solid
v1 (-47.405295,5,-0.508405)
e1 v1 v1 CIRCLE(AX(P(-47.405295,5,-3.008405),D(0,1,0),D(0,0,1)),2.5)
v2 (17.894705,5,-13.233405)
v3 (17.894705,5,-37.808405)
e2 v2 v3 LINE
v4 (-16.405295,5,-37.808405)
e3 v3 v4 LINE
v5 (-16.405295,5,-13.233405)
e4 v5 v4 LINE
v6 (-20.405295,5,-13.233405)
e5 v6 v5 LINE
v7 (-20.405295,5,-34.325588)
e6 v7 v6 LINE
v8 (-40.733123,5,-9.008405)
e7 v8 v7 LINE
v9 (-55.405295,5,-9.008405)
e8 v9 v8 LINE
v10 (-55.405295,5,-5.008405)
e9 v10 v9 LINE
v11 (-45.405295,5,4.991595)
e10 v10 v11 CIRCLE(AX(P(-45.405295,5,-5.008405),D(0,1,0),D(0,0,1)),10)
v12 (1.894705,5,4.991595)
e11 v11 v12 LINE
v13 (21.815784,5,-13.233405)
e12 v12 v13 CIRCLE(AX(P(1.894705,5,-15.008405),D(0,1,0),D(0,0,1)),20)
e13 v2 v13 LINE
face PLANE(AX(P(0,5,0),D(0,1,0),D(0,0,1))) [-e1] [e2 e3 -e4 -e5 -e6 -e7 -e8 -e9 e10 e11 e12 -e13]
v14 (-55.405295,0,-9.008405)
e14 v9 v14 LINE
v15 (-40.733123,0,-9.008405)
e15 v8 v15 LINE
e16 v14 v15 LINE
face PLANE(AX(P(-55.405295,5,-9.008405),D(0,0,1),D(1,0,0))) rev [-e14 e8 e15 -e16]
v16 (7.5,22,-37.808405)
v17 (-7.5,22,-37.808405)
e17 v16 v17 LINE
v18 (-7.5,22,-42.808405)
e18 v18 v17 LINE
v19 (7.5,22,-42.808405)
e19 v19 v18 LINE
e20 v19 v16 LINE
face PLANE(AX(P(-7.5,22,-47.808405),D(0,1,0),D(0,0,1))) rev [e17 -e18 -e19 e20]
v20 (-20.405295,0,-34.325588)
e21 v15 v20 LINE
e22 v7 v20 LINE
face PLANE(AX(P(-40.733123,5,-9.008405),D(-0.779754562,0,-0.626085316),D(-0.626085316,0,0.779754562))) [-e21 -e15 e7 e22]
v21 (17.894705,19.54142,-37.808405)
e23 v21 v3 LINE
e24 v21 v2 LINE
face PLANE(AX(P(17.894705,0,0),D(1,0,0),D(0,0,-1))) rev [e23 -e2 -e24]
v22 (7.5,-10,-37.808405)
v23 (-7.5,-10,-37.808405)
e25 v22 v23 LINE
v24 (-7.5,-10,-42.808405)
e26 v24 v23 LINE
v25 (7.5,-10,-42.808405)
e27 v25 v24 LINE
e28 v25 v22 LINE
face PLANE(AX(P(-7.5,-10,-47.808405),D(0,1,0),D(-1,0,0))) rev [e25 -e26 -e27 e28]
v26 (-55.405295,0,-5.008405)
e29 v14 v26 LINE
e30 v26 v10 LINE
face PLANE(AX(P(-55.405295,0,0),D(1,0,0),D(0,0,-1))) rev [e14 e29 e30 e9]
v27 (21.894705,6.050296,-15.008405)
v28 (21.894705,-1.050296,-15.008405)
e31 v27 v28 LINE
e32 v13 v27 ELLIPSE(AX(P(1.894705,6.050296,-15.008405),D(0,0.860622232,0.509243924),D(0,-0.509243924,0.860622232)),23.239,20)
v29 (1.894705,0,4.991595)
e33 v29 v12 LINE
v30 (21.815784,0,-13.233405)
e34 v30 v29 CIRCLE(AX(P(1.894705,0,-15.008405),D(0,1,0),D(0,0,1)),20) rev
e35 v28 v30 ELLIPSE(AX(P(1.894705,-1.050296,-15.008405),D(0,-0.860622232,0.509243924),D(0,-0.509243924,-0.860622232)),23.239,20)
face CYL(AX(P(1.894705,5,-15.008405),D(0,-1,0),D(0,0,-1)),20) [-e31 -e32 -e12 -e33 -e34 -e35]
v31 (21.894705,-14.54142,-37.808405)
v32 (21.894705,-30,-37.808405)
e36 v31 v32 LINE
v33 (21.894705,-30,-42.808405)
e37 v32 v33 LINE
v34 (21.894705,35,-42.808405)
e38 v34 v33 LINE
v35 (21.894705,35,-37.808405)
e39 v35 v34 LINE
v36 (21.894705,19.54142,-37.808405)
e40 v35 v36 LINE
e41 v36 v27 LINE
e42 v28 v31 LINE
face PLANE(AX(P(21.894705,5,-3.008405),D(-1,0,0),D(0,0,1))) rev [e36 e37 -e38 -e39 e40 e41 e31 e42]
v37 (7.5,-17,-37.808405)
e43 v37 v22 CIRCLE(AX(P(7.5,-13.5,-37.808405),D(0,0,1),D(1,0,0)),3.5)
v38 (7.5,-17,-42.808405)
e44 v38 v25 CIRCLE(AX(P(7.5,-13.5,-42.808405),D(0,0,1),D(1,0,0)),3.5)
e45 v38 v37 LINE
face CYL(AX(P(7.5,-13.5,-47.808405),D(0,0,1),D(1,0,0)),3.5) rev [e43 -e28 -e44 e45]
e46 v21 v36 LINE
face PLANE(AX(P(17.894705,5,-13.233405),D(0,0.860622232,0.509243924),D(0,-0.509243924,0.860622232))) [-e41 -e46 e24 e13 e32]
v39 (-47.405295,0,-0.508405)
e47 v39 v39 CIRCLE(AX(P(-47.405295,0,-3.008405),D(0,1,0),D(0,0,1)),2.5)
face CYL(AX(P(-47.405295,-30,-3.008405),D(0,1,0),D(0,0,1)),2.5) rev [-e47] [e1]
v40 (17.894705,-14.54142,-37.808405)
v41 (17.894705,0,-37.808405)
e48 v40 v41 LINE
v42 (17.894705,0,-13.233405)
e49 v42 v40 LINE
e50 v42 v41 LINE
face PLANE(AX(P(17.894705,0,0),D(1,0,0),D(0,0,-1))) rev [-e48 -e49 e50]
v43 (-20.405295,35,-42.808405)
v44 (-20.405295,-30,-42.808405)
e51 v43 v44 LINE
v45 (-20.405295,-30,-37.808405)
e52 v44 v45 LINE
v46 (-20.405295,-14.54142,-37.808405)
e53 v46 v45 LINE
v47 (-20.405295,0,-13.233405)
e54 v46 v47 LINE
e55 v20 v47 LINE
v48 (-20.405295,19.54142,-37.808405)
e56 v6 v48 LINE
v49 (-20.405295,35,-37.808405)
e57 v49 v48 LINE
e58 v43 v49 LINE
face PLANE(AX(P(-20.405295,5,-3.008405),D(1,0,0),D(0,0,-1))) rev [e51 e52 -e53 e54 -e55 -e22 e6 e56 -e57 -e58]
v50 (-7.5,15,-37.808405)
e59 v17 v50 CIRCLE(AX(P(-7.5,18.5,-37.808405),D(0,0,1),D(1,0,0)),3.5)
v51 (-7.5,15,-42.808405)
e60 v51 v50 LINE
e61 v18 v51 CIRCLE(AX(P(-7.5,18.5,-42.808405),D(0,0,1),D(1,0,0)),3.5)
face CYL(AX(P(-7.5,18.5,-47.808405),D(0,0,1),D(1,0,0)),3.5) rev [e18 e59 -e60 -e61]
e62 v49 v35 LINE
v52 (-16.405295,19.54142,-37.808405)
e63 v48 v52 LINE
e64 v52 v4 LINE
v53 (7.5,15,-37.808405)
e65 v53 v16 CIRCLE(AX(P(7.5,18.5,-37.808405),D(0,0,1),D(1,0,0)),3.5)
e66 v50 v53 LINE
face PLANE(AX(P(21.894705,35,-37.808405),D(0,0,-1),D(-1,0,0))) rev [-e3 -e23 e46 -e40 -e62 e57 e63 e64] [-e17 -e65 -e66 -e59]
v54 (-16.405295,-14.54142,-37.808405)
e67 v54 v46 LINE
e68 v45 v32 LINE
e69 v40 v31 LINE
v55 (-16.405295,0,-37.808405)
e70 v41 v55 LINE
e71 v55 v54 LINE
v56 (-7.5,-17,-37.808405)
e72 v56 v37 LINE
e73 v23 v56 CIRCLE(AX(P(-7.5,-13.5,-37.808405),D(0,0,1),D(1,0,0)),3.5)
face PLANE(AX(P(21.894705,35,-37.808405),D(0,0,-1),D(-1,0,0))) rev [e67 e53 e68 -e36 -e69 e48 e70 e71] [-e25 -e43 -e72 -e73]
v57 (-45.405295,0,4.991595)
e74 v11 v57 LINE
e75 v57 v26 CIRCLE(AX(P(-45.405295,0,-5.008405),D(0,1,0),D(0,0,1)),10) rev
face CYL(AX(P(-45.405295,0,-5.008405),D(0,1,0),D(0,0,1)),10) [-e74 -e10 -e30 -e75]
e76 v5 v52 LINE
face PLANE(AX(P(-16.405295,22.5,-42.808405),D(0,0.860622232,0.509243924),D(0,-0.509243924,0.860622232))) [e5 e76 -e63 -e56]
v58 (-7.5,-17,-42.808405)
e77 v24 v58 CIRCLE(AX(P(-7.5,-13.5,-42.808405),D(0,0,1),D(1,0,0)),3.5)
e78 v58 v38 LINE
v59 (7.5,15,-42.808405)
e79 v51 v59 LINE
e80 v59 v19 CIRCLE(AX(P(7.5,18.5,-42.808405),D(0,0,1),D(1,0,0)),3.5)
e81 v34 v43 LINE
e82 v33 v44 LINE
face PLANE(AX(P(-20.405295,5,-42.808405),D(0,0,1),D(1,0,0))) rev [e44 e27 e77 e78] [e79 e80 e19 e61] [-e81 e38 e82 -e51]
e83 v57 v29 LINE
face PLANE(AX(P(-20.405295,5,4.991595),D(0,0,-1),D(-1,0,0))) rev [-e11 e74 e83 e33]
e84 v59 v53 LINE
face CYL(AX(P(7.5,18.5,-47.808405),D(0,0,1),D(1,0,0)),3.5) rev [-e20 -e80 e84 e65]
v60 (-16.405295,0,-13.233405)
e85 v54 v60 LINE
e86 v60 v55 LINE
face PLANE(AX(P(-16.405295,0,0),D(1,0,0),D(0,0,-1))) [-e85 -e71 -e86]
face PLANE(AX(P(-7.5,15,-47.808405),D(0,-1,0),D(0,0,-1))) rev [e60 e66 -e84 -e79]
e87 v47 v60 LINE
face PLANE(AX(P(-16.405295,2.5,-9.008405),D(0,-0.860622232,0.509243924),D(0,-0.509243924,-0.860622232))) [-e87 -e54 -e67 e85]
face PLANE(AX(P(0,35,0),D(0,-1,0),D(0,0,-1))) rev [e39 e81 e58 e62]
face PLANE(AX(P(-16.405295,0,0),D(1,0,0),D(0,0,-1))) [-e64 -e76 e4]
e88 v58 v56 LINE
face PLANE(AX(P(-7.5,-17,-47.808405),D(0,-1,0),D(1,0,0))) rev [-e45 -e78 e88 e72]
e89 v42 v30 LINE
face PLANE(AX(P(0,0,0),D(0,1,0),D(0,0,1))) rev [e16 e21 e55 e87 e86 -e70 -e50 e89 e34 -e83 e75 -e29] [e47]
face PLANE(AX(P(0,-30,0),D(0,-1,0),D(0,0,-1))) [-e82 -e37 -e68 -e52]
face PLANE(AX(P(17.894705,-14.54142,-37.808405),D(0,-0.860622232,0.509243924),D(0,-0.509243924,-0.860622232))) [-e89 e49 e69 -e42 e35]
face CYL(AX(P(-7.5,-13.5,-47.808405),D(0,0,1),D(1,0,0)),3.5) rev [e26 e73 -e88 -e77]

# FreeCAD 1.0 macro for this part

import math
import FreeCAD as App
import Part
import Sketcher


def edges_at(feature, points):
    """Names of the edges that pass closest to the given points."""
    edges = feature.Shape.Edges
    near = lambda p: min(range(len(edges)), key=lambda i: edges[i].distToShape(Part.Vertex(*p))[0])
    return sorted({f"Edge{near(p) + 1}" for p in points})


def add_polygon(sketch, points):
    """Adds a closed chain of lines whose ends are joined by coincident constraints."""
    first, n = sketch.GeometryCount, len(points)
    for a, b in zip(points, points[1:] + points[:1]):
        sketch.addGeometry(Part.LineSegment(App.Vector(*a, 0), App.Vector(*b, 0)), False)
    for i in range(n):
        sketch.addConstraint(Sketcher.Constraint("Coincident", first + i, 2, first + (i + 1) % n, 1))

doc = App.newDocument("Part")
body = doc.addObject("PartDesign::Body", "Body")

# Sketch on XZ plane
sketch1 = body.newObject("Sketcher::SketchObject", "Sketch")
sketch1.AttachmentSupport = (doc.getObject("XZ_Plane"), [""])
sketch1.MapMode = "FlatFace"
add_polygon(sketch1, [(22, -43), (-20, -43), (-20, 5), (22, 5)])  # lines 0-3
sketch1.addConstraint([
    Sketcher.Constraint("Horizontal", 0),
    Sketcher.Constraint("Vertical", 1),
    Sketcher.Constraint("Horizontal", 2),
    Sketcher.Constraint("Vertical", 3),
    Sketcher.Constraint("DistanceX", 0, 2, 0, 1, 42.3),
    Sketcher.Constraint("DistanceY", 1, 1, 1, 2, 47.8),
    Sketcher.Constraint("DistanceX", 0, 2, -1, 1, 20.405295),
    Sketcher.Constraint("DistanceY", 0, 2, -1, 1, 42.808405),
])
pad1 = body.newObject("PartDesign::Pad", "Pad")
pad1.Profile = sketch1
pad1.Length = 5
pad1.Reversed = True

# Sketch on XZ plane
sketch2 = body.newObject("Sketcher::SketchObject", "Sketch001")
sketch2.AttachmentSupport = (doc.getObject("XZ_Plane"), [""])
sketch2.MapMode = "FlatFace"
sketch2.AttachmentOffset = App.Placement(App.Vector(0, 0, -5), App.Rotation())
add_polygon(sketch2, [(-20, -43), (-20, -38), (22, -38), (22, -43)])  # lines 0-3
sketch2.addConstraint([
    Sketcher.Constraint("Vertical", 0),
    Sketcher.Constraint("Horizontal", 1),
    Sketcher.Constraint("Vertical", 2),
    Sketcher.Constraint("Horizontal", 3),
    Sketcher.Constraint("DistanceY", 0, 1, 0, 2, 5.0),
    Sketcher.Constraint("DistanceX", 1, 1, 1, 2, 42.3),
    Sketcher.Constraint("DistanceX", 0, 2, -1, 1, 20.405295),
    Sketcher.Constraint("DistanceY", 0, 2, -1, 1, 37.808405),
])
pad2 = body.newObject("PartDesign::Pad", "Pad001")
pad2.Profile = sketch2
pad2.Type = "TwoLengths"
pad2.Length = 30
pad2.Length2 = 35
pad2.Reversed = True

# Sketch on XY plane
sketch3 = body.newObject("Sketcher::SketchObject", "Sketch002")
sketch3.AttachmentSupport = (doc.getObject("XY_Plane"), [""])
sketch3.MapMode = "FlatFace"
sketch3.AttachmentOffset = App.Placement(App.Vector(0, 0, -37.808405), App.Rotation())
sketch3.addGeometry([
    Part.LineSegment(App.Vector(7.5, 22, 0), App.Vector(-7.5, 22, 0)),  # 0
    Part.ArcOfCircle(Part.Circle(App.Vector(-7.5, 18.5, 0), App.Vector(0, 0, 1), 3.5), math.radians(90), math.radians(270)),  # 1
    Part.LineSegment(App.Vector(-7.5, 15, 0), App.Vector(7.5, 15, 0)),  # 2
    Part.ArcOfCircle(Part.Circle(App.Vector(7.5, 18.5, 0), App.Vector(0, 0, 1), 3.5), math.radians(-90), math.radians(90)),  # 3
    Part.LineSegment(App.Vector(7.5, -10, 0), App.Vector(-7.5, -10, 0)),  # 4
    Part.ArcOfCircle(Part.Circle(App.Vector(-7.5, -13.5, 0), App.Vector(0, 0, 1), 3.5), math.radians(90), math.radians(270)),  # 5
    Part.LineSegment(App.Vector(-7.5, -17, 0), App.Vector(7.5, -17, 0)),  # 6
    Part.ArcOfCircle(Part.Circle(App.Vector(7.5, -13.5, 0), App.Vector(0, 0, 1), 3.5), math.radians(-90), math.radians(90)),  # 7
], False)
sketch3.addConstraint([
    Sketcher.Constraint("Tangent", 0, 2, 1, 1),
    Sketcher.Constraint("Tangent", 1, 2, 2, 1),
    Sketcher.Constraint("Tangent", 2, 2, 3, 1),
    Sketcher.Constraint("Tangent", 3, 2, 0, 1),
    Sketcher.Constraint("Tangent", 4, 2, 5, 1),
    Sketcher.Constraint("Tangent", 5, 2, 6, 1),
    Sketcher.Constraint("Tangent", 6, 2, 7, 1),
    Sketcher.Constraint("Tangent", 7, 2, 4, 1),
    Sketcher.Constraint("Horizontal", 0),
    Sketcher.Constraint("Horizontal", 2),
    Sketcher.Constraint("Horizontal", 4),
    Sketcher.Constraint("Horizontal", 6),
    Sketcher.Constraint("Equal", 3, 5),
    Sketcher.Constraint("Vertical", 1, 3, 5, 3),
    Sketcher.Constraint("Vertical", 3, 3, 7, 3),
    Sketcher.Constraint("Radius", 1, 3.5),
    Sketcher.Constraint("DistanceX", 0, 2, 0, 1, 15.0),
    Sketcher.Constraint("DistanceY", -1, 1, 0, 2, 22.0),
    Sketcher.Constraint("DistanceY", 4, 2, -1, 1, 10.0),
    Sketcher.Constraint("DistanceX", 1, 3, -1, 1, 7.5),
])
pocket1 = body.newObject("PartDesign::Pocket", "Pocket")
pocket1.Profile = sketch3
pocket1.Length = 10

# Sketch on YZ plane
sketch4 = body.newObject("Sketcher::SketchObject", "Sketch003")
sketch4.AttachmentSupport = (doc.getObject("YZ_Plane"), [""])
sketch4.MapMode = "FlatFace"
sketch4.AttachmentOffset = App.Placement(App.Vector(0, 0, -20.405295), App.Rotation())
add_polygon(sketch4, [(5, -9), (0, -9), (0, 5), (5, 5)])  # lines 0-3
sketch4.addConstraint([
    Sketcher.Constraint("Horizontal", 0),
    Sketcher.Constraint("Vertical", 1),
    Sketcher.Constraint("Horizontal", 2),
    Sketcher.Constraint("Vertical", 3),
    Sketcher.Constraint("PointOnObject", 0, 2, -2),
    Sketcher.Constraint("DistanceX", 0, 2, 0, 1, 5.0),
    Sketcher.Constraint("DistanceY", 1, 1, 1, 2, 14.0),
    Sketcher.Constraint("DistanceY", 0, 2, -1, 1, 9.008405),
])
pad3 = body.newObject("PartDesign::Pad", "Pad002")
pad3.Profile = sketch4
pad3.Length = 35
pad3.Reversed = True
doc.recompute()

fillet = body.newObject("PartDesign::Fillet", "Fillet")
fillet.Base = (pad3, edges_at(pad3, [(-55.405, 2.5, 4.992)]))
fillet.Radius = 10

# Sketch on YZ plane
sketch5 = body.newObject("Sketcher::SketchObject", "Sketch004")
sketch5.AttachmentSupport = (doc.getObject("YZ_Plane"), [""])
sketch5.MapMode = "FlatFace"
sketch5.AttachmentOffset = App.Placement(App.Vector(0, 0, -20.405295), App.Rotation())
add_polygon(sketch5, [(22, -43), (-18, -43), (2, -9)])  # lines 0-2
sketch5.addConstraint([
    Sketcher.Constraint("Horizontal", 0),
    Sketcher.Constraint("Equal", 1, 2),
    Sketcher.Constraint("DistanceX", 0, 2, 0, 1, 40.0),
    Sketcher.Constraint("DistanceX", 0, 2, -1, 1, 17.5),
    Sketcher.Constraint("DistanceY", 0, 2, 1, 2, 33.8),
    Sketcher.Constraint("DistanceY", 0, 2, -1, 1, 42.808405),
])
pad4 = body.newObject("PartDesign::Pad", "Pad003")
pad4.Profile = sketch5
pad4.Length = 4

# Sketch on YZ plane
sketch6 = body.newObject("Sketcher::SketchObject", "Sketch005")
sketch6.AttachmentSupport = (doc.getObject("YZ_Plane"), [""])
sketch6.MapMode = "FlatFace"
sketch6.AttachmentOffset = App.Placement(App.Vector(0, 0, 21.894705), App.Rotation())
add_polygon(sketch6, [(-15, -38), (20, -38), (5, -13), (0, -13)])  # lines 0-3
sketch6.addConstraint([
    Sketcher.Constraint("Horizontal", 0),
    Sketcher.Constraint("Horizontal", 2),
    Sketcher.Constraint("PointOnObject", 2, 2, -2),
    Sketcher.Constraint("Equal", 1, 3),
    Sketcher.Constraint("DistanceX", 2, 2, 2, 1, 5.0),
    Sketcher.Constraint("DistanceY", 0, 2, 1, 2, 24.575),
    Sketcher.Constraint("DistanceX", 0, 1, 0, 2, 34.08284),
    Sketcher.Constraint("DistanceY", 0, 2, -1, 1, 37.808405),
])
pad5 = body.newObject("PartDesign::Pad", "Pad004")
pad5.Profile = sketch6
pad5.Length = 4
pad5.Reversed = True

# Sketch on XZ plane
sketch7 = body.newObject("Sketcher::SketchObject", "Sketch006")
sketch7.AttachmentSupport = (doc.getObject("XZ_Plane"), [""])
sketch7.MapMode = "FlatFace"
sketch7.AttachmentOffset = App.Placement(App.Vector(0, 0, -5), App.Rotation())
sketch7.addGeometry(Part.Circle(App.Vector(-47.4, -3, 0), App.Vector(0, 0, 1), 2.5), False)
sketch7.addConstraint([
    Sketcher.Constraint("Diameter", 0, 5.0),
    Sketcher.Constraint("DistanceX", 0, 3, -1, 1, 47.405295),
    Sketcher.Constraint("DistanceY", 0, 3, -1, 1, 3.008405),
])
pocket2 = body.newObject("PartDesign::Pocket", "Pocket001")
pocket2.Profile = sketch7
pocket2.Type = "ThroughAll"
pocket2.Reversed = True

# Sketch on XZ plane
sketch8 = body.newObject("Sketcher::SketchObject", "Sketch007")
sketch8.AttachmentSupport = (doc.getObject("XZ_Plane"), [""])
sketch8.MapMode = "FlatFace"
add_polygon(sketch8, [(-41, -9), (-20, -34), (-20, -9)])  # lines 0-2
sketch8.addConstraint([
    Sketcher.Constraint("Vertical", 1),
    Sketcher.Constraint("Horizontal", 2),
    Sketcher.Constraint("DistanceX", 2, 2, 2, 1, 20.327828),
    Sketcher.Constraint("DistanceY", 1, 1, 1, 2, 25.317183),
    Sketcher.Constraint("DistanceY", 0, 2, -1, 1, 34.325588),
    Sketcher.Constraint("DistanceX", 0, 2, -1, 1, 20.405295),
])
pad6 = body.newObject("PartDesign::Pad", "Pad005")
pad6.Profile = sketch8
pad6.Length = 5
pad6.Reversed = True
doc.recompute()

fillet2 = body.newObject("PartDesign::Fillet", "Fillet001")
fillet2.Base = (pad6, edges_at(pad6, [(21.895, 2.5, 4.992)]))
fillet2.Radius = 20

doc.recompute()
